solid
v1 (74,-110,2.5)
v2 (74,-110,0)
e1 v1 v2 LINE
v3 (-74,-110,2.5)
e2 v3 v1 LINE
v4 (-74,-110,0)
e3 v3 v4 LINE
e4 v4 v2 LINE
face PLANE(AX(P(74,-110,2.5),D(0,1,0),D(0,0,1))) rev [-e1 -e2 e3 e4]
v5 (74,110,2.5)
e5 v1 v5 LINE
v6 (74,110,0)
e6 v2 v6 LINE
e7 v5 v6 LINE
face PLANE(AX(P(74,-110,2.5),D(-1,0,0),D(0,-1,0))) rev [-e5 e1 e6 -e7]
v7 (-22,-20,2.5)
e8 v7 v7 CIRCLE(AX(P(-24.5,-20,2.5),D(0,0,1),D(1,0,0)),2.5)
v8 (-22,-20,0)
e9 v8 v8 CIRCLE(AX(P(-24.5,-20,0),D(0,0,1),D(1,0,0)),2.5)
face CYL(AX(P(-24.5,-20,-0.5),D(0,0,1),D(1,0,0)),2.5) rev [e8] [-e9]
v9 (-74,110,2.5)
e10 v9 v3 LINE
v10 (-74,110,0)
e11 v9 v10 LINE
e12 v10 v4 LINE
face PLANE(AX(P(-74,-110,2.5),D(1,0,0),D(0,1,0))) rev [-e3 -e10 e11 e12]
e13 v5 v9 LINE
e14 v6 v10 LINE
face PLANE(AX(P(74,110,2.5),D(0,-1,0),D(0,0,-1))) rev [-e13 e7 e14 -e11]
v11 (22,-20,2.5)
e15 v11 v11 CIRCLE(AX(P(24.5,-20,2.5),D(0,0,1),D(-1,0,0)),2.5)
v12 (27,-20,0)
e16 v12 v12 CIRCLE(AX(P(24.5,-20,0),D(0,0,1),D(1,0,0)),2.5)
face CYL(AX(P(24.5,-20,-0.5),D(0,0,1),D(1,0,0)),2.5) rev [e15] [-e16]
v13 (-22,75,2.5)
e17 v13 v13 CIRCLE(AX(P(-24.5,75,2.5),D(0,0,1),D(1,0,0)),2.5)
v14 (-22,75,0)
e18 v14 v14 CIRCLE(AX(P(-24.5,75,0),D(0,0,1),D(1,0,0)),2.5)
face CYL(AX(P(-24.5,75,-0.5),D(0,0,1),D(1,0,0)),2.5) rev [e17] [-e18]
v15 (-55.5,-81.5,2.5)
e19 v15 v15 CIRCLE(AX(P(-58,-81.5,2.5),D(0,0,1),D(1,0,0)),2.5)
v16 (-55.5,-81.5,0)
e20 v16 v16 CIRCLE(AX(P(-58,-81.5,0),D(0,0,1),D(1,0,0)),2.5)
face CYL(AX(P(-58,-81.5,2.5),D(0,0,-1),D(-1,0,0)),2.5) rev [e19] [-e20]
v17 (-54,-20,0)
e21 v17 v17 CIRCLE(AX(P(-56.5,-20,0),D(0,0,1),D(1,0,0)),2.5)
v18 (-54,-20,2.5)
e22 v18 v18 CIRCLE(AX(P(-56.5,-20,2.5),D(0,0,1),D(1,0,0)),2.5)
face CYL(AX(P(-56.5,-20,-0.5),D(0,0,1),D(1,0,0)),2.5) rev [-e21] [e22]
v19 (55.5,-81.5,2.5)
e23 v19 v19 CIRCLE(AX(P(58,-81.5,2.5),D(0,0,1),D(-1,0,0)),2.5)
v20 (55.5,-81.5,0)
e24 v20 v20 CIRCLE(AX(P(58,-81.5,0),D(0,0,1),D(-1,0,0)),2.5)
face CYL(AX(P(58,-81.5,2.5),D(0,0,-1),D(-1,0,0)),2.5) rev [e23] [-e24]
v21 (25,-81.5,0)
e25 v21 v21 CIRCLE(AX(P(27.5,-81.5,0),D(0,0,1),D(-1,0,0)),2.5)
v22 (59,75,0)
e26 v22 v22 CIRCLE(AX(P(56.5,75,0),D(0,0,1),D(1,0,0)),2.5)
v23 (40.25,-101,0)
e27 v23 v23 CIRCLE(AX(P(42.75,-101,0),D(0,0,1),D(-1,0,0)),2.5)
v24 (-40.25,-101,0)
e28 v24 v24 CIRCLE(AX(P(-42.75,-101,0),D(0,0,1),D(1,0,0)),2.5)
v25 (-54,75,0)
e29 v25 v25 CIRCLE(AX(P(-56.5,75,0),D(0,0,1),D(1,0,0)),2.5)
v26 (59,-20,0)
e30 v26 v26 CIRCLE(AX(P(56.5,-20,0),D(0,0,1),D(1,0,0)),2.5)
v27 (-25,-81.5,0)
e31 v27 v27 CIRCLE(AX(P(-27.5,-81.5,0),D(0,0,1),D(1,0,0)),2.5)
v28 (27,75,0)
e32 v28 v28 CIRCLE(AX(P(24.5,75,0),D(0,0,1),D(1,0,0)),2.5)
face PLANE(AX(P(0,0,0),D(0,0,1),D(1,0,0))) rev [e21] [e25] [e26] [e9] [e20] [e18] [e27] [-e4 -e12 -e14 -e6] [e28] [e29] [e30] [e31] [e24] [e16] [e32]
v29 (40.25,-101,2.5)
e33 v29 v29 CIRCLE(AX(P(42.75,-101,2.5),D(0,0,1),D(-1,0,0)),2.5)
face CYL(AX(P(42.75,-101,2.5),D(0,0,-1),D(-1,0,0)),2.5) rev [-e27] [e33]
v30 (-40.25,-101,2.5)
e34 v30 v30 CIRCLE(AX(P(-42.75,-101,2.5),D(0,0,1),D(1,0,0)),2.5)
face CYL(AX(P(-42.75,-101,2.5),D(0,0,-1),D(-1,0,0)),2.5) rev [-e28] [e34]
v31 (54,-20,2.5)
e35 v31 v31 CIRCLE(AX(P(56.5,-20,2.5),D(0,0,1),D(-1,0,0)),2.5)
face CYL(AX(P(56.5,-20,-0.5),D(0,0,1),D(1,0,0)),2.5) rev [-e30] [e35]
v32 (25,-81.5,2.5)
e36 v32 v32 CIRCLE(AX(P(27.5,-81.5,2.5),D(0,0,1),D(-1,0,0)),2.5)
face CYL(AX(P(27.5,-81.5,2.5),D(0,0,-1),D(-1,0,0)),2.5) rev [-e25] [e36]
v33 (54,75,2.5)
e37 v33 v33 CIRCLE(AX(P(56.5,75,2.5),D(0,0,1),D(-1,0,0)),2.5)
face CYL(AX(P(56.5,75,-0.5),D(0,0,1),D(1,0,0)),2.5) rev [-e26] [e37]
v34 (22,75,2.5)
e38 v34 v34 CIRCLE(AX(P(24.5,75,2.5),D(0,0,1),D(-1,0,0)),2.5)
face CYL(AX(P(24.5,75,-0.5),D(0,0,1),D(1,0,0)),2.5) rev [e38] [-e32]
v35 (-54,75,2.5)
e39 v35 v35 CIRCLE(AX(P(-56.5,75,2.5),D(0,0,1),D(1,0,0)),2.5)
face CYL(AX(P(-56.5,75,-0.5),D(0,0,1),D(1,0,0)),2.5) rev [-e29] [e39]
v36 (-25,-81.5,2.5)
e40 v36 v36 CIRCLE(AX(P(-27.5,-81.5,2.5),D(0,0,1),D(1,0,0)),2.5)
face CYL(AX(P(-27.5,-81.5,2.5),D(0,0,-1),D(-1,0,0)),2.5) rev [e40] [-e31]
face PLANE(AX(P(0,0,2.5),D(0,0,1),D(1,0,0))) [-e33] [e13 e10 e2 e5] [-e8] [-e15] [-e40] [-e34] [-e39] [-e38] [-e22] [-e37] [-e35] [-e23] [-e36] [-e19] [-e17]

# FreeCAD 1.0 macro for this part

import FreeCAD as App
import Part
import Sketcher

V = App.Vector
Q = App.Units.Quantity

doc = App.newDocument("Part")
body = doc.addObject("PartDesign::Body", "Body")

# Sketch on XY plane
sketch1 = doc.addObject("Sketcher::SketchObject", "Sketch")
body.addObject(sketch1)
sketch1.AttachmentSupport = (doc.XY_Plane, [""])
sketch1.MapMode = "FlatFace"
sketch1.addGeometry([
    Part.LineSegment(V(-74, 110, 0), V(-74, -110, 0)),  # 0
    Part.LineSegment(V(-74, -110, 0), V(74, -110, 0)),  # 1
    Part.LineSegment(V(74, -110, 0), V(74, 110, 0)),  # 2
    Part.LineSegment(V(74, 110, 0), V(-74, 110, 0)),  # 3
    Part.Circle(V(-42.8, -101, 0), V(0, 0, 1), 2.5),  # 4
    Part.Circle(V(42.8, -101, 0), V(0, 0, 1), 2.5),  # 5
    Part.Circle(V(-58, -81.5, 0), V(0, 0, 1), 2.5),  # 6
    Part.Circle(V(-27.5, -81.5, 0), V(0, 0, 1), 2.5),  # 7
    Part.Circle(V(27.5, -81.5, 0), V(0, 0, 1), 2.5),  # 8
    Part.Circle(V(58, -81.5, 0), V(0, 0, 1), 2.5),  # 9
], False)
sketch1.addConstraint([
    Sketcher.Constraint("Coincident", 0, 2, 1, 1),
    Sketcher.Constraint("Coincident", 1, 2, 2, 1),
    Sketcher.Constraint("Coincident", 2, 2, 3, 1),
    Sketcher.Constraint("Coincident", 3, 2, 0, 1),
    Sketcher.Constraint("Vertical", 0),
    Sketcher.Constraint("Horizontal", 1),
    Sketcher.Constraint("Vertical", 2),
    Sketcher.Constraint("Horizontal", 3),
    Sketcher.Constraint("Equal", 4, 5),
    Sketcher.Constraint("Equal", 5, 6),
    Sketcher.Constraint("Equal", 6, 7),
    Sketcher.Constraint("Equal", 7, 8),
    Sketcher.Constraint("Equal", 8, 9),
    Sketcher.Constraint("Symmetric", 0, 2, 2, 2, -1, 1),
    Sketcher.Constraint("Symmetric", 4, 3, 5, 3, -2),
    Sketcher.Constraint("Symmetric", 7, 3, 8, 3, -2),
    Sketcher.Constraint("Symmetric", 6, 3, 9, 3, -2),
    Sketcher.Constraint("Horizontal", 6, 3, 7, 3),
    Sketcher.Constraint("Diameter", 4, Q("5 mm")),
    Sketcher.Constraint("DistanceX", 1, 1, 1, 2, Q("148 mm")),
    Sketcher.Constraint("DistanceY", 0, 2, 0, 1, Q("220 mm")),
    Sketcher.Constraint("DistanceY", 4, 3, -1, 1, Q("101 mm")),
    Sketcher.Constraint("DistanceX", 6, 3, -1, 1, Q("58 mm")),
    Sketcher.Constraint("DistanceX", 7, 3, 8, 3, Q("55 mm")),
    Sketcher.Constraint("DistanceY", 6, 3, -1, 1, Q("81.5 mm")),
    Sketcher.Constraint("DistanceX", 4, 3, 5, 3, Q("85.5 mm")),
])
pad1 = doc.addObject("PartDesign::Pad", "Pad")
body.addObject(pad1)
pad1.Profile = sketch1
pad1.Length = 2.5

# Sketch on XY plane
sketch2 = doc.addObject("Sketcher::SketchObject", "Sketch001")
body.addObject(sketch2)
sketch2.AttachmentSupport = (doc.XY_Plane, [""])
sketch2.MapMode = "FlatFace"
sketch2.AttachmentOffset = App.Placement(V(0, 0, 2.5), App.Rotation())
sketch2.addGeometry([
    Part.Circle(V(-56.5, -20, 0), V(0, 0, 1), 2.5),  # 0
    Part.Circle(V(-24.5, -20, 0), V(0, 0, 1), 2.5),  # 1
    Part.Circle(V(-56.5, 75, 0), V(0, 0, 1), 2.5),  # 2
    Part.Circle(V(-24.5, 75, 0), V(0, 0, 1), 2.5),  # 3
    Part.Circle(V(-56.5, 170, 0), V(0, 0, 1), 2.5),  # 4
    Part.Circle(V(-24.5, 170, 0), V(0, 0, 1), 2.5),  # 5
    Part.Circle(V(24.5, 170, 0), V(0, 0, 1), 2.5),  # 6
    Part.Circle(V(56.5, 170, 0), V(0, 0, 1), 2.5),  # 7
    Part.Circle(V(24.5, 75, 0), V(0, 0, 1), 2.5),  # 8
    Part.Circle(V(56.5, 75, 0), V(0, 0, 1), 2.5),  # 9
    Part.Circle(V(24.5, -20, 0), V(0, 0, 1), 2.5),  # 10
    Part.Circle(V(56.5, -20, 0), V(0, 0, 1), 2.5),  # 11
], False)
sketch2.addConstraint([
    Sketcher.Constraint("Equal", 0, 1),
    Sketcher.Constraint("Equal", 1, 2),
    Sketcher.Constraint("Equal", 2, 3),
    Sketcher.Constraint("Equal", 3, 4),
    Sketcher.Constraint("Equal", 4, 5),
    Sketcher.Constraint("Equal", 5, 6),
    Sketcher.Constraint("Equal", 6, 7),
    Sketcher.Constraint("Equal", 7, 8),
    Sketcher.Constraint("Equal", 8, 9),
    Sketcher.Constraint("Equal", 9, 10),
    Sketcher.Constraint("Equal", 10, 11),
    Sketcher.Constraint("Symmetric", 5, 3, 6, 3, -2),
    Sketcher.Constraint("Symmetric", 4, 3, 7, 3, -2),
    Sketcher.Constraint("Symmetric", 3, 3, 8, 3, -2),
    Sketcher.Constraint("Symmetric", 2, 3, 9, 3, -2),
    Sketcher.Constraint("Symmetric", 1, 3, 10, 3, -2),
    Sketcher.Constraint("Symmetric", 0, 3, 11, 3, -2),
    Sketcher.Constraint("Horizontal", 0, 3, 1, 3),
    Sketcher.Constraint("Horizontal", 2, 3, 3, 3),
    Sketcher.Constraint("Horizontal", 4, 3, 5, 3),
    Sketcher.Constraint("Vertical", 0, 3, 2, 3),
    Sketcher.Constraint("Vertical", 1, 3, 3, 3),
    Sketcher.Constraint("Vertical", 2, 3, 4, 3),
    Sketcher.Constraint("Vertical", 3, 3, 5, 3),
    Sketcher.Constraint("Diameter", 0, Q("5 mm")),
    Sketcher.Constraint("DistanceY", 0, 3, -1, 1, Q("20 mm")),
    Sketcher.Constraint("DistanceY", -1, 1, 2, 3, Q("75 mm")),
    Sketcher.Constraint("DistanceY", -1, 1, 4, 3, Q("170 mm")),
    Sketcher.Constraint("DistanceX", 0, 3, 1, 3, Q("32 mm")),
    Sketcher.Constraint("DistanceX", 5, 3, 6, 3, Q("49 mm")),
])
pocket1 = doc.addObject("PartDesign::Pocket", "Pocket")
body.addObject(pocket1)
pocket1.Profile = sketch2
pocket1.Length = 3

doc.recompute()
